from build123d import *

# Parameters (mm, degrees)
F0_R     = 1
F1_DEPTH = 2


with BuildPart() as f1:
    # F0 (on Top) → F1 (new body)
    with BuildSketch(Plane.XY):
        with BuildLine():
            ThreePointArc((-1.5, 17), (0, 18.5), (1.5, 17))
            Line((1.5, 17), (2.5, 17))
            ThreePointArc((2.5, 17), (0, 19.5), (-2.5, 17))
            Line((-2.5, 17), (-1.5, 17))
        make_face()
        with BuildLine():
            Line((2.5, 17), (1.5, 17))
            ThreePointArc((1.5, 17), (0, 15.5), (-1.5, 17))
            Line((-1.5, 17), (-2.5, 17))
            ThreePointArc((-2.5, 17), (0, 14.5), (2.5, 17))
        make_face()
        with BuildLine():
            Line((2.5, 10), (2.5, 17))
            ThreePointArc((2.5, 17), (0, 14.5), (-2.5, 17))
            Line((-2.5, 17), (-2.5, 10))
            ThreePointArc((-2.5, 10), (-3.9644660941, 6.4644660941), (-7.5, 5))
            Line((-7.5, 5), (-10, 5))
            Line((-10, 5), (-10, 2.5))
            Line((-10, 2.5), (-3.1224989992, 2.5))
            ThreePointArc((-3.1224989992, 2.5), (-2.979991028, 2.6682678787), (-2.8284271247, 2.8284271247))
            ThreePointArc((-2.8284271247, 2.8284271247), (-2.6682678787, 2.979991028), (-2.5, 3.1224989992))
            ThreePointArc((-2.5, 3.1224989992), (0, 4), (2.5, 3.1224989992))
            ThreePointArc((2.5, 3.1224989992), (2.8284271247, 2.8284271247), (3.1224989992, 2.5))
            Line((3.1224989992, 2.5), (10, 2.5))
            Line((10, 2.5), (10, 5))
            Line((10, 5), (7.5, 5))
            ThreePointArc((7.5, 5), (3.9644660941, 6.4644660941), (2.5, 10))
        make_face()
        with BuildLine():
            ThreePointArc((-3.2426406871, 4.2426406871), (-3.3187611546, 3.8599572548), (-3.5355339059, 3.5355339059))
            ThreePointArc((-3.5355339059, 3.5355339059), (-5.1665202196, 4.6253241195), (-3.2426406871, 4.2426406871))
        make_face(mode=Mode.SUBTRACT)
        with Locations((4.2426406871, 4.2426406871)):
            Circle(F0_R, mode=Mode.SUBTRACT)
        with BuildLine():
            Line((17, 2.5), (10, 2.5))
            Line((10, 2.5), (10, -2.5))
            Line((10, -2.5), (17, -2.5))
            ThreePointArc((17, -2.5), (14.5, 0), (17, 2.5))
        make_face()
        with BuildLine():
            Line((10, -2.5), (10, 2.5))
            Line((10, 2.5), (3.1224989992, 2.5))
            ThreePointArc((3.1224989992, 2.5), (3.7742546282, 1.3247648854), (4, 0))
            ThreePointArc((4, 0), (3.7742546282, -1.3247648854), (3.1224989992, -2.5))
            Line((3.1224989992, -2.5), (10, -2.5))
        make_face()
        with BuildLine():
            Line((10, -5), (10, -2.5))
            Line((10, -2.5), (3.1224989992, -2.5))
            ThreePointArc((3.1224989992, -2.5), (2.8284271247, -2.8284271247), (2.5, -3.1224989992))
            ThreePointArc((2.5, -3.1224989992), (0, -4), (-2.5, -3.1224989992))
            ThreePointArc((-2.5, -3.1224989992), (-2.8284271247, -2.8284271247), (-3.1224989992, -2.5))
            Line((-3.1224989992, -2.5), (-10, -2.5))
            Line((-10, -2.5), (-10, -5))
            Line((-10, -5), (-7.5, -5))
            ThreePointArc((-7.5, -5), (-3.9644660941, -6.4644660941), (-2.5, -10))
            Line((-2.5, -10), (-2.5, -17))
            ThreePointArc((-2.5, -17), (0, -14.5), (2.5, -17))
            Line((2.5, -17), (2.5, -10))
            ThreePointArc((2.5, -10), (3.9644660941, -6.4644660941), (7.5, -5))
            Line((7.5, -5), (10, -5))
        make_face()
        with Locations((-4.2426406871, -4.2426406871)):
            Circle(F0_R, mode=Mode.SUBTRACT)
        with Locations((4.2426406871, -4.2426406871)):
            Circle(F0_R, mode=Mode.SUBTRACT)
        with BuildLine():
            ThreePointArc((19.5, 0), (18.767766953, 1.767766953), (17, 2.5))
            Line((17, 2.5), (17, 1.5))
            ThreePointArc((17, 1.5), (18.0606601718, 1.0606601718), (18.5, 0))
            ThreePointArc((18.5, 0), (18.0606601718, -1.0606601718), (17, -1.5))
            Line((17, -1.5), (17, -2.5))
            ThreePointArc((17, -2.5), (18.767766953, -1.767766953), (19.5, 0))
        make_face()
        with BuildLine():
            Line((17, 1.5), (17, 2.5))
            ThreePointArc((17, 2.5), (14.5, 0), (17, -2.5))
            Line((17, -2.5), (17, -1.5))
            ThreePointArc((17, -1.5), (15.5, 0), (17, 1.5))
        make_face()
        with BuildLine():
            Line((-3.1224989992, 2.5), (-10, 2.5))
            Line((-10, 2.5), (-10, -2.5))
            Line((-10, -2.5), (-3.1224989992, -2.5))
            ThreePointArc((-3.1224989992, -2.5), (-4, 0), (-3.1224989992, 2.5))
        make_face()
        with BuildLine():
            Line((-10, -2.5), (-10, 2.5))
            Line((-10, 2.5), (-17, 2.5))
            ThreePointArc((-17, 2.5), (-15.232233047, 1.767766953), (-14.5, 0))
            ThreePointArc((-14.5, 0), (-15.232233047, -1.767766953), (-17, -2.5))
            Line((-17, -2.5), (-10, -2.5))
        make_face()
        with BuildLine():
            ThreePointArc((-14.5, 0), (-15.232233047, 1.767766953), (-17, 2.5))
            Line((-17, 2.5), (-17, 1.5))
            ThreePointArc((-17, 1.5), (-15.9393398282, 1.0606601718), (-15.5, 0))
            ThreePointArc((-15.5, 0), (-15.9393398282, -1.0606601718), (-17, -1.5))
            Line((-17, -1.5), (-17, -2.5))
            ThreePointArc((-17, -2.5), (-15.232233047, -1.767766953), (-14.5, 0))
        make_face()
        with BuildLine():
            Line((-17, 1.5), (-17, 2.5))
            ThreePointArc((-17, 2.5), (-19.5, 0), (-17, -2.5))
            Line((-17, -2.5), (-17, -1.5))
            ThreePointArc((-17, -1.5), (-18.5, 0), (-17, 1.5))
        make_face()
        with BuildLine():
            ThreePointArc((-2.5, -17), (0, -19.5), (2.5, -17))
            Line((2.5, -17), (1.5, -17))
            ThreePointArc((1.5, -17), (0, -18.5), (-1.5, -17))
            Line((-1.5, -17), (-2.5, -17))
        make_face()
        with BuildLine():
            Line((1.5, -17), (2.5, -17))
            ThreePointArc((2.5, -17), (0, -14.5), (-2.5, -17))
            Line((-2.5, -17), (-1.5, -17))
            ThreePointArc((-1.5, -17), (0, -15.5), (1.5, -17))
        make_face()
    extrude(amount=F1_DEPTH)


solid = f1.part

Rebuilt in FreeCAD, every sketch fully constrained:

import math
import FreeCAD as App
import Part
import Sketcher

doc = App.newDocument("Part")
body = doc.addObject("PartDesign::Body", "Body")

# Sketch on XY plane
sketch1 = body.newObject("Sketcher::SketchObject", "Sketch")
sketch1.AttachmentSupport = (doc.getObject("XY_Plane"), [""])
sketch1.MapMode = "FlatFace"
sketch1.addGeometry([
    Part.ArcOfCircle(Part.Circle(App.Vector(0, 17, 0), App.Vector(0, 0, 1), 2.5), math.radians(0), math.radians(180)),  # 0
    Part.LineSegment(App.Vector(-2.5, 17, 0), App.Vector(-2.5, 10, 0)),  # 1
    Part.ArcOfCircle(Part.Circle(App.Vector(-7.5, 10, 0), App.Vector(0, 0, 1), 5), math.radians(-90), math.radians(0)),  # 2
    Part.LineSegment(App.Vector(-7.5, 5, 0), App.Vector(-10, 5, 0)),  # 3
    Part.LineSegment(App.Vector(-10, 5, 0), App.Vector(-10, 2.5, 0)),  # 4
    Part.LineSegment(App.Vector(-10, 2.5, 0), App.Vector(-17, 2.5, 0)),  # 5
    Part.ArcOfCircle(Part.Circle(App.Vector(-17, 0, 0), App.Vector(0, 0, 1), 2.5), math.radians(90), math.radians(270)),  # 6
    Part.LineSegment(App.Vector(-17, -2.5, 0), App.Vector(-10, -2.5, 0)),  # 7
    Part.LineSegment(App.Vector(-10, -2.5, 0), App.Vector(-10, -5, 0)),  # 8
    Part.LineSegment(App.Vector(-10, -5, 0), App.Vector(-7.5, -5, 0)),  # 9
    Part.ArcOfCircle(Part.Circle(App.Vector(-7.5, -10, 0), App.Vector(0, 0, 1), 5), math.radians(0), math.radians(90)),  # 10
    Part.LineSegment(App.Vector(-2.5, -10, 0), App.Vector(-2.5, -17, 0)),  # 11
    Part.ArcOfCircle(Part.Circle(App.Vector(0, -17, 0), App.Vector(0, 0, 1), 2.5), math.radians(180), math.radians(360)),  # 12
    Part.LineSegment(App.Vector(2.5, -17, 0), App.Vector(2.5, -10, 0)),  # 13
    Part.ArcOfCircle(Part.Circle(App.Vector(7.5, -10, 0), App.Vector(0, 0, 1), 5), math.radians(90), math.radians(180)),  # 14
    Part.LineSegment(App.Vector(7.5, -5, 0), App.Vector(10, -5, 0)),  # 15
    Part.LineSegment(App.Vector(10, -5, 0), App.Vector(10, -2.5, 0)),  # 16
    Part.LineSegment(App.Vector(10, -2.5, 0), App.Vector(17, -2.5, 0)),  # 17
    Part.ArcOfCircle(Part.Circle(App.Vector(17, 0, 0), App.Vector(0, 0, 1), 2.5), math.radians(-90), math.radians(0)),  # 18
    Part.ArcOfCircle(Part.Circle(App.Vector(17, 0, 0), App.Vector(0, 0, 1), 2.5), math.radians(0), math.radians(90)),  # 19
    Part.LineSegment(App.Vector(17, 2.5, 0), App.Vector(10, 2.5, 0)),  # 20
    Part.LineSegment(App.Vector(10, 2.5, 0), App.Vector(10, 5, 0)),  # 21
    Part.LineSegment(App.Vector(10, 5, 0), App.Vector(7.5, 5, 0)),  # 22
    Part.ArcOfCircle(Part.Circle(App.Vector(7.5, 10, 0), App.Vector(0, 0, 1), 5), math.radians(180), math.radians(270)),  # 23
    Part.LineSegment(App.Vector(2.5, 10, 0), App.Vector(2.5, 17, 0)),  # 24
    Part.ArcOfCircle(Part.Circle(App.Vector(-17, 0, 0), App.Vector(0, 0, 1), 1.5), math.radians(0), math.radians(90)),  # 25
    Part.ArcOfCircle(Part.Circle(App.Vector(-17, 0, 0), App.Vector(0, 0, 1), 1.5), math.radians(-90), math.radians(0)),  # 26
    Part.ArcOfCircle(Part.Circle(App.Vector(-17, 0, 0), App.Vector(0, 0, 1), 1.5), math.radians(90), math.radians(270)),  # 27
    Part.ArcOfCircle(Part.Circle(App.Vector(0, 0, 0), App.Vector(0, 0, 1), 4), math.radians(135), math.radians(141.32)),  # 28
    Part.ArcOfCircle(Part.Circle(App.Vector(0, 0, 0), App.Vector(0, 0, 1), 4), math.radians(128.68), math.radians(135)),  # 29
    Part.ArcOfCircle(Part.Circle(App.Vector(0, 0, 0), App.Vector(0, 0, 1), 4), math.radians(51), math.radians(129)),  # 30
    Part.ArcOfCircle(Part.Circle(App.Vector(0, 0, 0), App.Vector(0, 0, 1), 4), math.radians(38.68), math.radians(51.32)),  # 31
    Part.ArcOfCircle(Part.Circle(App.Vector(0, 0, 0), App.Vector(0, 0, 1), 4), math.radians(0), math.radians(39)),  # 32
    Part.ArcOfCircle(Part.Circle(App.Vector(0, 0, 0), App.Vector(0, 0, 1), 4), math.radians(-39), math.radians(0)),  # 33
    Part.ArcOfCircle(Part.Circle(App.Vector(0, 0, 0), App.Vector(0, 0, 1), 4), math.radians(-51.32), math.radians(-38.68)),  # 34
    Part.ArcOfCircle(Part.Circle(App.Vector(0, 0, 0), App.Vector(0, 0, 1), 4), math.radians(-129), math.radians(-51)),  # 35
    Part.ArcOfCircle(Part.Circle(App.Vector(0, 0, 0), App.Vector(0, 0, 1), 4), math.radians(-141.32), math.radians(-128.68)),  # 36
    Part.ArcOfCircle(Part.Circle(App.Vector(0, 0, 0), App.Vector(0, 0, 1), 4), math.radians(141), math.radians(219)),  # 37
    Part.Circle(App.Vector(-4.24, -4.24, 0), App.Vector(0, 0, 1), 1),  # 38
    Part.ArcOfCircle(Part.Circle(App.Vector(-4.24, 4.24, 0), App.Vector(0, 0, 1), 1), math.radians(0), math.radians(315)),  # 39
    Part.ArcOfCircle(Part.Circle(App.Vector(-4.24, 4.24, 0), App.Vector(0, 0, 1), 1), math.radians(-45), math.radians(0)),  # 40
    Part.Circle(App.Vector(4.24, -4.24, 0), App.Vector(0, 0, 1), 1),  # 41
    Part.Circle(App.Vector(4.24, 4.24, 0), App.Vector(0, 0, 1), 1),  # 42
    Part.Circle(App.Vector(0, 17, 0), App.Vector(0, 0, 1), 1.5),  # 43
    Part.ArcOfCircle(Part.Circle(App.Vector(17, 0, 0), App.Vector(0, 0, 1), 1.5), math.radians(90), math.radians(270)),  # 44
    Part.ArcOfCircle(Part.Circle(App.Vector(17, 0, 0), App.Vector(0, 0, 1), 1.5), math.radians(0), math.radians(90)),  # 45
    Part.ArcOfCircle(Part.Circle(App.Vector(17, 0, 0), App.Vector(0, 0, 1), 1.5), math.radians(-90), math.radians(0)),  # 46
    Part.Circle(App.Vector(0, -17, 0), App.Vector(0, 0, 1), 1.5),  # 47
], False)
sketch1.addConstraint([
    Sketcher.Constraint("Tangent", 0, 2, 1, 1),
    Sketcher.Constraint("Tangent", 1, 2, 2, 2),
    Sketcher.Constraint("Tangent", 2, 1, 3, 1),
    Sketcher.Constraint("Coincident", 3, 2, 4, 1),
    Sketcher.Constraint("Coincident", 4, 2, 5, 1),
    Sketcher.Constraint("Tangent", 5, 2, 6, 1),
    Sketcher.Constraint("Tangent", 6, 2, 7, 1),
    Sketcher.Constraint("Coincident", 7, 2, 8, 1),
    Sketcher.Constraint("Coincident", 8, 2, 9, 1),
    Sketcher.Constraint("Tangent", 9, 2, 10, 2),
    Sketcher.Constraint("Tangent", 10, 1, 11, 1),
    Sketcher.Constraint("Tangent", 11, 2, 12, 1),
    Sketcher.Constraint("Tangent", 12, 2, 13, 1),
    Sketcher.Constraint("Tangent", 13, 2, 14, 2),
    Sketcher.Constraint("Tangent", 14, 1, 15, 1),
    Sketcher.Constraint("Coincident", 15, 2, 16, 1),
    Sketcher.Constraint("Coincident", 16, 2, 17, 1),
    Sketcher.Constraint("Tangent", 17, 2, 18, 1),
    Sketcher.Constraint("Tangent", 18, 2, 19, 1),
    Sketcher.Constraint("Tangent", 19, 2, 20, 1),
    Sketcher.Constraint("Coincident", 20, 2, 21, 1),
    Sketcher.Constraint("Coincident", 21, 2, 22, 1),
    Sketcher.Constraint("Tangent", 22, 2, 23, 2),
    Sketcher.Constraint("Tangent", 23, 1, 24, 1),
    Sketcher.Constraint("Tangent", 24, 2, 0, 1),
    Sketcher.Constraint("Tangent", 25, 1, 26, 2),
    Sketcher.Constraint("Tangent", 26, 1, 27, 2),
    Sketcher.Constraint("Tangent", 27, 1, 25, 2),
    Sketcher.Constraint("Tangent", 28, 1, 29, 2),
    Sketcher.Constraint("Tangent", 29, 1, 30, 2),
    Sketcher.Constraint("Tangent", 30, 1, 31, 2),
    Sketcher.Constraint("Tangent", 31, 1, 32, 2),
    Sketcher.Constraint("Tangent", 32, 1, 33, 2),
    Sketcher.Constraint("Tangent", 33, 1, 34, 2),
    Sketcher.Constraint("Tangent", 34, 1, 35, 2),
    Sketcher.Constraint("Tangent", 35, 1, 36, 2),
    Sketcher.Constraint("Tangent", 36, 1, 37, 2),
    Sketcher.Constraint("Tangent", 37, 1, 28, 2),
    Sketcher.Constraint("Tangent", 39, 1, 40, 2),
    Sketcher.Constraint("Coincident", 40, 1, 39, 2),
    Sketcher.Constraint("Tangent", 44, 1, 45, 2),
    Sketcher.Constraint("Tangent", 45, 1, 46, 2),
    Sketcher.Constraint("Tangent", 46, 1, 44, 2),
    Sketcher.Constraint("Vertical", 1),
    Sketcher.Constraint("Horizontal", 3),
    Sketcher.Constraint("Vertical", 4),
    Sketcher.Constraint("Horizontal", 5),
    Sketcher.Constraint("Horizontal", 7),
    Sketcher.Constraint("Vertical", 8),
    Sketcher.Constraint("Horizontal", 9),
    Sketcher.Constraint("Vertical", 11),
    Sketcher.Constraint("Vertical", 13),
    Sketcher.Constraint("Horizontal", 15),
    Sketcher.Constraint("Vertical", 16),
    Sketcher.Constraint("Horizontal", 17),
    Sketcher.Constraint("Horizontal", 20),
    Sketcher.Constraint("Vertical", 21),
    Sketcher.Constraint("Horizontal", 22),
    Sketcher.Constraint("Vertical", 24),
    Sketcher.Constraint("Coincident", 28, 3, -1, 1),
    Sketcher.Constraint("Coincident", 30, 3, -1, 1),
    Sketcher.Constraint("Coincident", 32, 3, -1, 1),
    Sketcher.Constraint("Coincident", 34, 3, -1, 1),
    Sketcher.Constraint("Coincident", 25, 3, 6, 3),
    Sketcher.Constraint("Coincident", 43, 3, 0, 3),
    Sketcher.Constraint("Coincident", 44, 3, 18, 3),
    Sketcher.Constraint("Coincident", 47, 3, 12, 3),
    Sketcher.Constraint("Equal", 0, 6),
    Sketcher.Constraint("Equal", 2, 10),
    Sketcher.Constraint("Equal", 6, 12),
    Sketcher.Constraint("Equal", 10, 14),
    Sketcher.Constraint("Equal", 12, 18),
    Sketcher.Constraint("Equal", 18, 19),
    Sketcher.Constraint("Equal", 14, 23),
    Sketcher.Constraint("Equal", 34, 35),
    Sketcher.Constraint("Equal", 38, 39),
    Sketcher.Constraint("Equal", 40, 41),
    Sketcher.Constraint("Equal", 41, 42),
    Sketcher.Constraint("Equal", 27, 43),
    Sketcher.Constraint("Equal", 43, 44),
    Sketcher.Constraint("Equal", 46, 47),
    Sketcher.Constraint("Symmetric", 0, 3, 12, 3, -1, 1),
    Sketcher.Constraint("Symmetric", 6, 3, 18, 3, -1, 1),
    Sketcher.Constraint("Symmetric", 39, 3, 41, 3, -1, 1),
    Sketcher.Constraint("Symmetric", 38, 3, 42, 3, -1, 1),
    Sketcher.Constraint("Symmetric", 3, 2, 15, 2, -1, 1),
    Sketcher.Constraint("Symmetric", 8, 2, 21, 2, -1, 1),
    Sketcher.Constraint("Symmetric", 10, 3, 14, 3, -2),
    Sketcher.Constraint("Symmetric", 38, 3, 41, 3, -2),
    Sketcher.Constraint("Symmetric", 7, 2, 16, 2, -2),
    Sketcher.Constraint("PointOnObject", 18, 2, -1),
    Sketcher.Constraint("PointOnObject", 25, 1, -1),
    Sketcher.Constraint("PointOnObject", 32, 1, -1),
    Sketcher.Constraint("PointOnObject", 45, 1, -1),
    Sketcher.Constraint("Horizontal", 29, 1, 30, 1),
    Sketcher.Constraint("Horizontal", 20, 2, 31, 1),
    Sketcher.Constraint("Horizontal", 17, 2, 33, 1),
    Sketcher.Constraint("Horizontal", 34, 1, 35, 1),
    Sketcher.Constraint("Horizontal", 33, 1, 36, 1),
    Sketcher.Constraint("Horizontal", 31, 1, 37, 1),
    Sketcher.Constraint("Horizontal", 42, 3, 39, 1),
    Sketcher.Constraint("Vertical", 6, 2, 26, 1),
    Sketcher.Constraint("Vertical", 26, 1, 27, 1),
    Sketcher.Constraint("Vertical", 11, 2, 29, 1),
    Sketcher.Constraint("Vertical", 30, 1, 34, 1),
    Sketcher.Constraint("Vertical", 19, 2, 44, 1),
    Sketcher.Constraint("Vertical", 44, 1, 46, 1),
    Sketcher.Constraint("Equal", 20, 1),
    Sketcher.Constraint("Equal", 22, 4),
    Sketcher.Constraint("Diameter", 38, 2.0),
    Sketcher.Constraint("Diameter", 43, 3.0),
    Sketcher.Constraint("Radius", 2, 5.0),
    Sketcher.Constraint("Radius", 28, 4.0),
    Sketcher.Constraint("Radius", 0, 2.5),
    Sketcher.Constraint("DistanceX", 5, 2, 5, 1, 7.0),
    Sketcher.Constraint("DistanceX", 3, 2, 3, 1, 2.5),
    Sketcher.Constraint("DistanceX", 38, 3, -1, 1, 4.242641),
    Sketcher.Constraint("DistanceY", 38, 3, -1, 1, 4.242641),
    Sketcher.Constraint("DistanceX", 28, 1, -1, 1, 2.828427),
    Sketcher.Constraint("DistanceX", 40, 1, -1, 1, 3.535534),
])
pad1 = body.newObject("PartDesign::Pad", "Pad")
pad1.Profile = sketch1
pad1.Length = 2

doc.recompute()
